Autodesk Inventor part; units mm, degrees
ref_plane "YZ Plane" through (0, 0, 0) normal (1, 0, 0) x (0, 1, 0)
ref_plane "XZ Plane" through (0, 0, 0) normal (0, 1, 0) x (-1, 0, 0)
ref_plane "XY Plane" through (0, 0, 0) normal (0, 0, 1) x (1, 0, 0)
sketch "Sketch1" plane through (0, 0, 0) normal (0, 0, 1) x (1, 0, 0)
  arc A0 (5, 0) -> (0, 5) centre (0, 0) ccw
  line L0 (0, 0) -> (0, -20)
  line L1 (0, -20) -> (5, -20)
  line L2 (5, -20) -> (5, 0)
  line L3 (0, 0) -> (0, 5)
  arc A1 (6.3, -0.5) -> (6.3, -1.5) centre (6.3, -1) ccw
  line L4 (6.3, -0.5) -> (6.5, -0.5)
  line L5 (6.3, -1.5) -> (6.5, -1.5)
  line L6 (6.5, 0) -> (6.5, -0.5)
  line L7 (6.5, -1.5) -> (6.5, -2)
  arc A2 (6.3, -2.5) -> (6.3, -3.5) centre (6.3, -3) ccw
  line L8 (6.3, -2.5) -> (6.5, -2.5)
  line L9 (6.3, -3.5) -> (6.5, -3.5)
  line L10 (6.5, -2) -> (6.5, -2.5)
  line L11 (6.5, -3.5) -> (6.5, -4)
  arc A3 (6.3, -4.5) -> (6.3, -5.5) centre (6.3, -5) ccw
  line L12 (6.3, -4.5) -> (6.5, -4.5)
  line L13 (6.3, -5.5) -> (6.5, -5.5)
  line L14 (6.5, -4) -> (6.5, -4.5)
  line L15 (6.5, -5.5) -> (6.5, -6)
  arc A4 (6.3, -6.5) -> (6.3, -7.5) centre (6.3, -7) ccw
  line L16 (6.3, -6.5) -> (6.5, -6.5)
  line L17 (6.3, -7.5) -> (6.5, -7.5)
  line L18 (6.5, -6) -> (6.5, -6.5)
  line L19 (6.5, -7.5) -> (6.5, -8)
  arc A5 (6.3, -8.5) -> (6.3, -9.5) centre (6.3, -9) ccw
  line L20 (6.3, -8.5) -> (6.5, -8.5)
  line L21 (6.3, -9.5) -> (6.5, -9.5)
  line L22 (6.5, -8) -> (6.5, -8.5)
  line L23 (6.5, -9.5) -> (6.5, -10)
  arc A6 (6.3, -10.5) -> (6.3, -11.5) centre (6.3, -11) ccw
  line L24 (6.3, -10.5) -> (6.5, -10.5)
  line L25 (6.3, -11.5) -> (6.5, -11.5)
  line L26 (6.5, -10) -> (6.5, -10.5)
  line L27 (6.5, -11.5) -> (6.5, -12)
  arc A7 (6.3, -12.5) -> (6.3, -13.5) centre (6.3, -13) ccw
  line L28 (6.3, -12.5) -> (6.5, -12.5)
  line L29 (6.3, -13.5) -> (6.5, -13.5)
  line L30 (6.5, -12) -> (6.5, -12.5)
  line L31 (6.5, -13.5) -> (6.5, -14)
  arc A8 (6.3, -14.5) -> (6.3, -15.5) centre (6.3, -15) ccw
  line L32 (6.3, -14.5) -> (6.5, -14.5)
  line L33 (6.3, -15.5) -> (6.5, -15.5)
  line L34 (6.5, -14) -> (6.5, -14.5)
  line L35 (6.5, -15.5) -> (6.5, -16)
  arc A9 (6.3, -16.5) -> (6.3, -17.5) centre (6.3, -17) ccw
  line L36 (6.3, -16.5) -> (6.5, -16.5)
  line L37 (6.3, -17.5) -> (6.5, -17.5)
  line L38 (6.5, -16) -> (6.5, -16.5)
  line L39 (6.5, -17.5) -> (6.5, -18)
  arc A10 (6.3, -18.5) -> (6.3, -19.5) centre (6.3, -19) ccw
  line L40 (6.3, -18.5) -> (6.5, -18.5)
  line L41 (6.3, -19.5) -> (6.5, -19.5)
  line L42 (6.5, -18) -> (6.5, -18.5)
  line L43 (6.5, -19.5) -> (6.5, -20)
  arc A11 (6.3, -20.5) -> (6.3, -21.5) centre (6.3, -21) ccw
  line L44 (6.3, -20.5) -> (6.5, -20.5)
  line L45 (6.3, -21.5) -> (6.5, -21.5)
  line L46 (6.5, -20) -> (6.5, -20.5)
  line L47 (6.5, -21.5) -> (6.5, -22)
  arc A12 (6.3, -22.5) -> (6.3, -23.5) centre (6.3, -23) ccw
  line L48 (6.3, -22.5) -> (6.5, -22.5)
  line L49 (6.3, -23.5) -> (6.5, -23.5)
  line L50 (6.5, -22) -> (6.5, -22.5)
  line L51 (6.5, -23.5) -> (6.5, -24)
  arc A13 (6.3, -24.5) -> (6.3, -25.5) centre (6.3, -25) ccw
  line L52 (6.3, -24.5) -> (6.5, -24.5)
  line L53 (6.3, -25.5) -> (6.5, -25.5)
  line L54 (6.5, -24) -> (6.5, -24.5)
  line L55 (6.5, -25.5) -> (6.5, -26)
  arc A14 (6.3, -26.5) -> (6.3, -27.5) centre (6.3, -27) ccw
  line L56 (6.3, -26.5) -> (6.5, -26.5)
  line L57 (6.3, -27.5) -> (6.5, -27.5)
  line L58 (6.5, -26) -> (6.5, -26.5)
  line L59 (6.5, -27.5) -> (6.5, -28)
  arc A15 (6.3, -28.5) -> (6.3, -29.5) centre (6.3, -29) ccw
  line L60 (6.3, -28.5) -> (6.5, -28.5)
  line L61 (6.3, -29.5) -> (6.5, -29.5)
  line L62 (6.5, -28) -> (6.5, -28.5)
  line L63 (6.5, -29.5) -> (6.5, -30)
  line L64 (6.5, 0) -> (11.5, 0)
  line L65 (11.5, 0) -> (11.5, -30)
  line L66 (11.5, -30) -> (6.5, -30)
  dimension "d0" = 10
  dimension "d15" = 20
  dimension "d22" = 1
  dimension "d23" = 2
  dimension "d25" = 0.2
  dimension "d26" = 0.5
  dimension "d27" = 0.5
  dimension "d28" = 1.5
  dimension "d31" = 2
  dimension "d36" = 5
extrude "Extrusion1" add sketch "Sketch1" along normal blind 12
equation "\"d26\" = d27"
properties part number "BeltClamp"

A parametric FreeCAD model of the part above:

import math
import FreeCAD as App
import Part
import Sketcher

doc = App.newDocument("Part")
body = doc.addObject("PartDesign::Body", "Body")
body.AllowCompound = True

# Sketch on XY plane
sketch1 = body.newObject("Sketcher::SketchObject", "Sketch")
sketch1.AttachmentSupport = (doc.getObject("XY_Plane"), [""])
sketch1.MapMode = "FlatFace"
sketch1.addGeometry(Part.LineSegment(App.Vector(5, -20, 0), App.Vector(5, 0, 0)), False)
sketch1.addGeometry(Part.ArcOfCircle(Part.Circle(App.Vector(0, 0, 0), App.Vector(0, 0, 1), 5), math.radians(0), math.radians(90)), False)
sketch1.addGeometry(Part.LineSegment(App.Vector(0, 5, 0), App.Vector(0, -20, 0)), False)
sketch1.addGeometry(Part.LineSegment(App.Vector(0, -20, 0), App.Vector(5, -20, 0)), False)
sketch1.addGeometry(Part.LineSegment(App.Vector(6.5, -0.5, 0), App.Vector(6.3, -0.5, 0)), False)
sketch1.addGeometry(Part.ArcOfCircle(Part.Circle(App.Vector(6.3, -1, 0), App.Vector(0, 0, 1), 0.5), math.radians(90), math.radians(270)), False)
sketch1.addGeometry(Part.LineSegment(App.Vector(6.3, -1.5, 0), App.Vector(6.5, -1.5, 0)), False)
sketch1.addGeometry(Part.LineSegment(App.Vector(6.5, -1.5, 0), App.Vector(6.5, -2.5, 0)), False)
sketch1.addGeometry(Part.LineSegment(App.Vector(6.5, -2.5, 0), App.Vector(6.3, -2.5, 0)), False)
sketch1.addGeometry(Part.ArcOfCircle(Part.Circle(App.Vector(6.3, -3, 0), App.Vector(0, 0, 1), 0.5), math.radians(90), math.radians(270)), False)
sketch1.addGeometry(Part.LineSegment(App.Vector(6.3, -3.5, 0), App.Vector(6.5, -3.5, 0)), False)
sketch1.addGeometry(Part.LineSegment(App.Vector(6.5, -3.5, 0), App.Vector(6.5, -4.5, 0)), False)
sketch1.addGeometry(Part.LineSegment(App.Vector(6.5, -4.5, 0), App.Vector(6.3, -4.5, 0)), False)
sketch1.addGeometry(Part.ArcOfCircle(Part.Circle(App.Vector(6.3, -5, 0), App.Vector(0, 0, 1), 0.5), math.radians(90), math.radians(270)), False)
sketch1.addGeometry(Part.LineSegment(App.Vector(6.3, -5.5, 0), App.Vector(6.5, -5.5, 0)), False)
sketch1.addGeometry(Part.LineSegment(App.Vector(6.5, -5.5, 0), App.Vector(6.5, -6.5, 0)), False)
sketch1.addGeometry(Part.LineSegment(App.Vector(6.5, -6.5, 0), App.Vector(6.3, -6.5, 0)), False)
sketch1.addGeometry(Part.ArcOfCircle(Part.Circle(App.Vector(6.3, -7, 0), App.Vector(0, 0, 1), 0.5), math.radians(90), math.radians(270)), False)
sketch1.addGeometry(Part.LineSegment(App.Vector(6.3, -7.5, 0), App.Vector(6.5, -7.5, 0)), False)
sketch1.addGeometry(Part.LineSegment(App.Vector(6.5, -7.5, 0), App.Vector(6.5, -8.5, 0)), False)
sketch1.addGeometry(Part.LineSegment(App.Vector(6.5, -8.5, 0), App.Vector(6.3, -8.5, 0)), False)
sketch1.addGeometry(Part.ArcOfCircle(Part.Circle(App.Vector(6.3, -9, 0), App.Vector(0, 0, 1), 0.5), math.radians(90), math.radians(270)), False)
sketch1.addGeometry(Part.LineSegment(App.Vector(6.3, -9.5, 0), App.Vector(6.5, -9.5, 0)), False)
sketch1.addGeometry(Part.LineSegment(App.Vector(6.5, -9.5, 0), App.Vector(6.5, -10.5, 0)), False)
sketch1.addGeometry(Part.LineSegment(App.Vector(6.5, -10.5, 0), App.Vector(6.3, -10.5, 0)), False)
sketch1.addGeometry(Part.ArcOfCircle(Part.Circle(App.Vector(6.3, -11, 0), App.Vector(0, 0, 1), 0.5), math.radians(90), math.radians(270)), False)
sketch1.addGeometry(Part.LineSegment(App.Vector(6.3, -11.5, 0), App.Vector(6.5, -11.5, 0)), False)
sketch1.addGeometry(Part.LineSegment(App.Vector(6.5, -11.5, 0), App.Vector(6.5, -12.5, 0)), False)
sketch1.addGeometry(Part.LineSegment(App.Vector(6.5, -12.5, 0), App.Vector(6.3, -12.5, 0)), False)
sketch1.addGeometry(Part.ArcOfCircle(Part.Circle(App.Vector(6.3, -13, 0), App.Vector(0, 0, 1), 0.5), math.radians(90), math.radians(270)), False)
sketch1.addGeometry(Part.LineSegment(App.Vector(6.3, -13.5, 0), App.Vector(6.5, -13.5, 0)), False)
sketch1.addGeometry(Part.LineSegment(App.Vector(6.5, -13.5, 0), App.Vector(6.5, -14.5, 0)), False)
sketch1.addGeometry(Part.LineSegment(App.Vector(6.5, -14.5, 0), App.Vector(6.3, -14.5, 0)), False)
sketch1.addGeometry(Part.ArcOfCircle(Part.Circle(App.Vector(6.3, -15, 0), App.Vector(0, 0, 1), 0.5), math.radians(90), math.radians(270)), False)
sketch1.addGeometry(Part.LineSegment(App.Vector(6.3, -15.5, 0), App.Vector(6.5, -15.5, 0)), False)
sketch1.addGeometry(Part.LineSegment(App.Vector(6.5, -15.5, 0), App.Vector(6.5, -16.5, 0)), False)
sketch1.addGeometry(Part.LineSegment(App.Vector(6.5, -16.5, 0), App.Vector(6.3, -16.5, 0)), False)
sketch1.addGeometry(Part.ArcOfCircle(Part.Circle(App.Vector(6.3, -17, 0), App.Vector(0, 0, 1), 0.5), math.radians(90), math.radians(270)), False)
sketch1.addGeometry(Part.LineSegment(App.Vector(6.3, -17.5, 0), App.Vector(6.5, -17.5, 0)), False)
sketch1.addGeometry(Part.LineSegment(App.Vector(6.5, -17.5, 0), App.Vector(6.5, -18.5, 0)), False)
sketch1.addGeometry(Part.LineSegment(App.Vector(6.5, -18.5, 0), App.Vector(6.3, -18.5, 0)), False)
sketch1.addGeometry(Part.ArcOfCircle(Part.Circle(App.Vector(6.3, -19, 0), App.Vector(0, 0, 1), 0.5), math.radians(90), math.radians(270)), False)
sketch1.addGeometry(Part.LineSegment(App.Vector(6.3, -19.5, 0), App.Vector(6.5, -19.5, 0)), False)
sketch1.addGeometry(Part.LineSegment(App.Vector(6.5, -19.5, 0), App.Vector(6.5, -20.5, 0)), False)
sketch1.addGeometry(Part.LineSegment(App.Vector(6.5, -20.5, 0), App.Vector(6.3, -20.5, 0)), False)
sketch1.addGeometry(Part.ArcOfCircle(Part.Circle(App.Vector(6.3, -21, 0), App.Vector(0, 0, 1), 0.5), math.radians(90), math.radians(270)), False)
sketch1.addGeometry(Part.LineSegment(App.Vector(6.3, -21.5, 0), App.Vector(6.5, -21.5, 0)), False)
sketch1.addGeometry(Part.LineSegment(App.Vector(6.5, -21.5, 0), App.Vector(6.5, -22.5, 0)), False)
sketch1.addGeometry(Part.LineSegment(App.Vector(6.5, -22.5, 0), App.Vector(6.3, -22.5, 0)), False)
sketch1.addGeometry(Part.ArcOfCircle(Part.Circle(App.Vector(6.3, -23, 0), App.Vector(0, 0, 1), 0.5), math.radians(90), math.radians(270)), False)
sketch1.addGeometry(Part.LineSegment(App.Vector(6.3, -23.5, 0), App.Vector(6.5, -23.5, 0)), False)
sketch1.addGeometry(Part.LineSegment(App.Vector(6.5, -23.5, 0), App.Vector(6.5, -24.5, 0)), False)
sketch1.addGeometry(Part.LineSegment(App.Vector(6.5, -24.5, 0), App.Vector(6.3, -24.5, 0)), False)
sketch1.addGeometry(Part.ArcOfCircle(Part.Circle(App.Vector(6.3, -25, 0), App.Vector(0, 0, 1), 0.5), math.radians(90), math.radians(270)), False)
sketch1.addGeometry(Part.LineSegment(App.Vector(6.3, -25.5, 0), App.Vector(6.5, -25.5, 0)), False)
sketch1.addGeometry(Part.LineSegment(App.Vector(6.5, -25.5, 0), App.Vector(6.5, -26.5, 0)), False)
sketch1.addGeometry(Part.LineSegment(App.Vector(6.5, -26.5, 0), App.Vector(6.3, -26.5, 0)), False)
sketch1.addGeometry(Part.ArcOfCircle(Part.Circle(App.Vector(6.3, -27, 0), App.Vector(0, 0, 1), 0.5), math.radians(90), math.radians(270)), False)
sketch1.addGeometry(Part.LineSegment(App.Vector(6.3, -27.5, 0), App.Vector(6.5, -27.5, 0)), False)
sketch1.addGeometry(Part.LineSegment(App.Vector(6.5, -27.5, 0), App.Vector(6.5, -28.5, 0)), False)
sketch1.addGeometry(Part.LineSegment(App.Vector(6.5, -28.5, 0), App.Vector(6.3, -28.5, 0)), False)
sketch1.addGeometry(Part.ArcOfCircle(Part.Circle(App.Vector(6.3, -29, 0), App.Vector(0, 0, 1), 0.5), math.radians(90), math.radians(270)), False)
sketch1.addGeometry(Part.LineSegment(App.Vector(6.3, -29.5, 0), App.Vector(6.5, -29.5, 0)), False)
sketch1.addGeometry(Part.LineSegment(App.Vector(6.5, -29.5, 0), App.Vector(6.5, -30, 0)), False)
sketch1.addGeometry(Part.LineSegment(App.Vector(6.5, -30, 0), App.Vector(11.5, -30, 0)), False)
sketch1.addGeometry(Part.LineSegment(App.Vector(11.5, -30, 0), App.Vector(11.5, 0, 0)), False)
sketch1.addGeometry(Part.LineSegment(App.Vector(11.5, 0, 0), App.Vector(6.5, 0, 0)), False)
sketch1.addGeometry(Part.LineSegment(App.Vector(6.5, 0, 0), App.Vector(6.5, -0.5, 0)), False)
sketch1.addConstraint(Sketcher.Constraint("Tangent", 0, 2, 1, 1))
sketch1.addConstraint(Sketcher.Constraint("Coincident", 1, 2, 2, 1))
sketch1.addConstraint(Sketcher.Constraint("Coincident", 2, 2, 3, 1))
sketch1.addConstraint(Sketcher.Constraint("Coincident", 3, 2, 0, 1))
sketch1.addConstraint(Sketcher.Constraint("Tangent", 4, 2, 5, 1))
sketch1.addConstraint(Sketcher.Constraint("Tangent", 5, 2, 6, 1))
sketch1.addConstraint(Sketcher.Constraint("Coincident", 6, 2, 7, 1))
sketch1.addConstraint(Sketcher.Constraint("Coincident", 7, 2, 8, 1))
sketch1.addConstraint(Sketcher.Constraint("Tangent", 8, 2, 9, 1))
sketch1.addConstraint(Sketcher.Constraint("Tangent", 9, 2, 10, 1))
sketch1.addConstraint(Sketcher.Constraint("Coincident", 10, 2, 11, 1))
sketch1.addConstraint(Sketcher.Constraint("Coincident", 11, 2, 12, 1))
sketch1.addConstraint(Sketcher.Constraint("Tangent", 12, 2, 13, 1))
sketch1.addConstraint(Sketcher.Constraint("Tangent", 13, 2, 14, 1))
sketch1.addConstraint(Sketcher.Constraint("Coincident", 14, 2, 15, 1))
sketch1.addConstraint(Sketcher.Constraint("Coincident", 15, 2, 16, 1))
sketch1.addConstraint(Sketcher.Constraint("Tangent", 16, 2, 17, 1))
sketch1.addConstraint(Sketcher.Constraint("Tangent", 17, 2, 18, 1))
sketch1.addConstraint(Sketcher.Constraint("Coincident", 18, 2, 19, 1))
sketch1.addConstraint(Sketcher.Constraint("Coincident", 19, 2, 20, 1))
sketch1.addConstraint(Sketcher.Constraint("Tangent", 20, 2, 21, 1))
sketch1.addConstraint(Sketcher.Constraint("Tangent", 21, 2, 22, 1))
sketch1.addConstraint(Sketcher.Constraint("Coincident", 22, 2, 23, 1))
sketch1.addConstraint(Sketcher.Constraint("Coincident", 23, 2, 24, 1))
sketch1.addConstraint(Sketcher.Constraint("Tangent", 24, 2, 25, 1))
sketch1.addConstraint(Sketcher.Constraint("Tangent", 25, 2, 26, 1))
sketch1.addConstraint(Sketcher.Constraint("Coincident", 26, 2, 27, 1))
sketch1.addConstraint(Sketcher.Constraint("Coincident", 27, 2, 28, 1))
sketch1.addConstraint(Sketcher.Constraint("Tangent", 28, 2, 29, 1))
sketch1.addConstraint(Sketcher.Constraint("Tangent", 29, 2, 30, 1))
sketch1.addConstraint(Sketcher.Constraint("Coincident", 30, 2, 31, 1))
sketch1.addConstraint(Sketcher.Constraint("Coincident", 31, 2, 32, 1))
sketch1.addConstraint(Sketcher.Constraint("Tangent", 32, 2, 33, 1))
sketch1.addConstraint(Sketcher.Constraint("Tangent", 33, 2, 34, 1))
sketch1.addConstraint(Sketcher.Constraint("Coincident", 34, 2, 35, 1))
sketch1.addConstraint(Sketcher.Constraint("Coincident", 35, 2, 36, 1))
sketch1.addConstraint(Sketcher.Constraint("Tangent", 36, 2, 37, 1))
sketch1.addConstraint(Sketcher.Constraint("Tangent", 37, 2, 38, 1))
sketch1.addConstraint(Sketcher.Constraint("Coincident", 38, 2, 39, 1))
sketch1.addConstraint(Sketcher.Constraint("Coincident", 39, 2, 40, 1))
sketch1.addConstraint(Sketcher.Constraint("Tangent", 40, 2, 41, 1))
sketch1.addConstraint(Sketcher.Constraint("Tangent", 41, 2, 42, 1))
sketch1.addConstraint(Sketcher.Constraint("Coincident", 42, 2, 43, 1))
sketch1.addConstraint(Sketcher.Constraint("Coincident", 43, 2, 44, 1))
sketch1.addConstraint(Sketcher.Constraint("Tangent", 44, 2, 45, 1))
sketch1.addConstraint(Sketcher.Constraint("Tangent", 45, 2, 46, 1))
sketch1.addConstraint(Sketcher.Constraint("Coincident", 46, 2, 47, 1))
sketch1.addConstraint(Sketcher.Constraint("Coincident", 47, 2, 48, 1))
sketch1.addConstraint(Sketcher.Constraint("Tangent", 48, 2, 49, 1))
sketch1.addConstraint(Sketcher.Constraint("Tangent", 49, 2, 50, 1))
sketch1.addConstraint(Sketcher.Constraint("Coincident", 50, 2, 51, 1))
sketch1.addConstraint(Sketcher.Constraint("Coincident", 51, 2, 52, 1))
sketch1.addConstraint(Sketcher.Constraint("Tangent", 52, 2, 53, 1))
sketch1.addConstraint(Sketcher.Constraint("Tangent", 53, 2, 54, 1))
sketch1.addConstraint(Sketcher.Constraint("Coincident", 54, 2, 55, 1))
sketch1.addConstraint(Sketcher.Constraint("Coincident", 55, 2, 56, 1))
sketch1.addConstraint(Sketcher.Constraint("Tangent", 56, 2, 57, 1))
sketch1.addConstraint(Sketcher.Constraint("Tangent", 57, 2, 58, 1))
sketch1.addConstraint(Sketcher.Constraint("Coincident", 58, 2, 59, 1))
sketch1.addConstraint(Sketcher.Constraint("Coincident", 59, 2, 60, 1))
sketch1.addConstraint(Sketcher.Constraint("Tangent", 60, 2, 61, 1))
sketch1.addConstraint(Sketcher.Constraint("Tangent", 61, 2, 62, 1))
sketch1.addConstraint(Sketcher.Constraint("Coincident", 62, 2, 63, 1))
sketch1.addConstraint(Sketcher.Constraint("Coincident", 63, 2, 64, 1))
sketch1.addConstraint(Sketcher.Constraint("Coincident", 64, 2, 65, 1))
sketch1.addConstraint(Sketcher.Constraint("Coincident", 65, 2, 66, 1))
sketch1.addConstraint(Sketcher.Constraint("Coincident", 66, 2, 67, 1))
sketch1.addConstraint(Sketcher.Constraint("Coincident", 67, 2, 4, 1))
sketch1.addConstraint(Sketcher.Constraint("Vertical", 0))
sketch1.addConstraint(Sketcher.Constraint("Vertical", 2))
sketch1.addConstraint(Sketcher.Constraint("Horizontal", 3))
sketch1.addConstraint(Sketcher.Constraint("Horizontal", 4))
sketch1.addConstraint(Sketcher.Constraint("Horizontal", 6))
sketch1.addConstraint(Sketcher.Constraint("Vertical", 7))
sketch1.addConstraint(Sketcher.Constraint("Horizontal", 8))
sketch1.addConstraint(Sketcher.Constraint("Horizontal", 10))
sketch1.addConstraint(Sketcher.Constraint("Vertical", 11))
sketch1.addConstraint(Sketcher.Constraint("Horizontal", 12))
sketch1.addConstraint(Sketcher.Constraint("Horizontal", 14))
sketch1.addConstraint(Sketcher.Constraint("Vertical", 15))
sketch1.addConstraint(Sketcher.Constraint("Horizontal", 16))
sketch1.addConstraint(Sketcher.Constraint("Horizontal", 18))
sketch1.addConstraint(Sketcher.Constraint("Vertical", 19))
sketch1.addConstraint(Sketcher.Constraint("Horizontal", 20))
sketch1.addConstraint(Sketcher.Constraint("Horizontal", 22))
sketch1.addConstraint(Sketcher.Constraint("Vertical", 23))
sketch1.addConstraint(Sketcher.Constraint("Horizontal", 24))
sketch1.addConstraint(Sketcher.Constraint("Horizontal", 26))
sketch1.addConstraint(Sketcher.Constraint("Vertical", 27))
sketch1.addConstraint(Sketcher.Constraint("Horizontal", 28))
sketch1.addConstraint(Sketcher.Constraint("Horizontal", 30))
sketch1.addConstraint(Sketcher.Constraint("Vertical", 31))
sketch1.addConstraint(Sketcher.Constraint("Horizontal", 32))
sketch1.addConstraint(Sketcher.Constraint("Horizontal", 34))
sketch1.addConstraint(Sketcher.Constraint("Vertical", 35))
sketch1.addConstraint(Sketcher.Constraint("Horizontal", 36))
sketch1.addConstraint(Sketcher.Constraint("Horizontal", 38))
sketch1.addConstraint(Sketcher.Constraint("Vertical", 39))
sketch1.addConstraint(Sketcher.Constraint("Horizontal", 40))
sketch1.addConstraint(Sketcher.Constraint("Horizontal", 42))
sketch1.addConstraint(Sketcher.Constraint("Vertical", 43))
sketch1.addConstraint(Sketcher.Constraint("Horizontal", 44))
sketch1.addConstraint(Sketcher.Constraint("Horizontal", 46))
sketch1.addConstraint(Sketcher.Constraint("Vertical", 47))
sketch1.addConstraint(Sketcher.Constraint("Horizontal", 48))
sketch1.addConstraint(Sketcher.Constraint("Horizontal", 50))
sketch1.addConstraint(Sketcher.Constraint("Vertical", 51))
sketch1.addConstraint(Sketcher.Constraint("Horizontal", 52))
sketch1.addConstraint(Sketcher.Constraint("Horizontal", 54))
sketch1.addConstraint(Sketcher.Constraint("Vertical", 55))
sketch1.addConstraint(Sketcher.Constraint("Horizontal", 56))
sketch1.addConstraint(Sketcher.Constraint("Horizontal", 58))
sketch1.addConstraint(Sketcher.Constraint("Vertical", 59))
sketch1.addConstraint(Sketcher.Constraint("Horizontal", 60))
sketch1.addConstraint(Sketcher.Constraint("Horizontal", 62))
sketch1.addConstraint(Sketcher.Constraint("Vertical", 63))
sketch1.addConstraint(Sketcher.Constraint("Horizontal", 64))
sketch1.addConstraint(Sketcher.Constraint("Vertical", 65))
sketch1.addConstraint(Sketcher.Constraint("Horizontal", 66))
sketch1.addConstraint(Sketcher.Constraint("Vertical", 67))
sketch1.addConstraint(Sketcher.Constraint("Coincident", 1, 3, -1, 1))
sketch1.addConstraint(Sketcher.Constraint("Equal", 5, 9))
sketch1.addConstraint(Sketcher.Constraint("Equal", 9, 13))
sketch1.addConstraint(Sketcher.Constraint("Equal", 13, 17))
sketch1.addConstraint(Sketcher.Constraint("Equal", 17, 21))
sketch1.addConstraint(Sketcher.Constraint("Equal", 21, 25))
sketch1.addConstraint(Sketcher.Constraint("Equal", 25, 29))
sketch1.addConstraint(Sketcher.Constraint("Equal", 29, 33))
sketch1.addConstraint(Sketcher.Constraint("Equal", 33, 37))
sketch1.addConstraint(Sketcher.Constraint("Equal", 37, 41))
sketch1.addConstraint(Sketcher.Constraint("Equal", 41, 45))
sketch1.addConstraint(Sketcher.Constraint("Equal", 45, 49))
sketch1.addConstraint(Sketcher.Constraint("Equal", 49, 53))
sketch1.addConstraint(Sketcher.Constraint("Equal", 53, 57))
sketch1.addConstraint(Sketcher.Constraint("Equal", 57, 61))
sketch1.addConstraint(Sketcher.Constraint("PointOnObject", 1, 2, -2))
sketch1.addConstraint(Sketcher.Constraint("PointOnObject", 65, 2, -1))
sketch1.addConstraint(Sketcher.Constraint("Vertical", 5, 3, 9, 3))
sketch1.addConstraint(Sketcher.Constraint("Vertical", 9, 3, 13, 3))
sketch1.addConstraint(Sketcher.Constraint("Vertical", 13, 3, 17, 3))
sketch1.addConstraint(Sketcher.Constraint("Vertical", 17, 3, 21, 3))
sketch1.addConstraint(Sketcher.Constraint("Vertical", 21, 3, 25, 3))
sketch1.addConstraint(Sketcher.Constraint("Vertical", 25, 3, 29, 3))
sketch1.addConstraint(Sketcher.Constraint("Vertical", 29, 3, 33, 3))
sketch1.addConstraint(Sketcher.Constraint("Vertical", 33, 3, 37, 3))
sketch1.addConstraint(Sketcher.Constraint("Vertical", 37, 3, 41, 3))
sketch1.addConstraint(Sketcher.Constraint("Vertical", 41, 3, 45, 3))
sketch1.addConstraint(Sketcher.Constraint("Vertical", 45, 3, 49, 3))
sketch1.addConstraint(Sketcher.Constraint("Vertical", 49, 3, 53, 3))
sketch1.addConstraint(Sketcher.Constraint("Vertical", 53, 3, 57, 3))
sketch1.addConstraint(Sketcher.Constraint("Vertical", 57, 3, 61, 3))
sketch1.addConstraint(Sketcher.Constraint("Vertical", 7, 2, 10, 2))
sketch1.addConstraint(Sketcher.Constraint("Vertical", 11, 2, 14, 2))
sketch1.addConstraint(Sketcher.Constraint("Vertical", 15, 2, 18, 2))
sketch1.addConstraint(Sketcher.Constraint("Vertical", 19, 2, 22, 2))
sketch1.addConstraint(Sketcher.Constraint("Vertical", 23, 2, 26, 2))
sketch1.addConstraint(Sketcher.Constraint("Vertical", 27, 2, 30, 2))
sketch1.addConstraint(Sketcher.Constraint("Vertical", 31, 2, 34, 2))
sketch1.addConstraint(Sketcher.Constraint("Vertical", 35, 2, 38, 2))
sketch1.addConstraint(Sketcher.Constraint("Vertical", 39, 2, 42, 2))
sketch1.addConstraint(Sketcher.Constraint("Vertical", 43, 2, 46, 2))
sketch1.addConstraint(Sketcher.Constraint("Vertical", 47, 2, 50, 2))
sketch1.addConstraint(Sketcher.Constraint("Vertical", 51, 2, 54, 2))
sketch1.addConstraint(Sketcher.Constraint("Vertical", 55, 2, 58, 2))
sketch1.addConstraint(Sketcher.Constraint("Vertical", 59, 2, 62, 2))
sketch1.addConstraint(Sketcher.Constraint("Vertical", 63, 2, 66, 2))
sketch1.addConstraint(Sketcher.Constraint("Equal", 3, 64))
sketch1.addConstraint(Sketcher.Constraint("Equal", 7, 11))
sketch1.addConstraint(Sketcher.Constraint("Equal", 11, 15))
sketch1.addConstraint(Sketcher.Constraint("Equal", 15, 19))
sketch1.addConstraint(Sketcher.Constraint("Equal", 19, 23))
sketch1.addConstraint(Sketcher.Constraint("Equal", 23, 27))
sketch1.addConstraint(Sketcher.Constraint("Equal", 27, 31))
sketch1.addConstraint(Sketcher.Constraint("Equal", 31, 35))
sketch1.addConstraint(Sketcher.Constraint("Equal", 35, 39))
sketch1.addConstraint(Sketcher.Constraint("Equal", 39, 43))
sketch1.addConstraint(Sketcher.Constraint("Equal", 43, 47))
sketch1.addConstraint(Sketcher.Constraint("Equal", 47, 51))
sketch1.addConstraint(Sketcher.Constraint("Equal", 51, 55))
sketch1.addConstraint(Sketcher.Constraint("Equal", 55, 59))
sketch1.addConstraint(Sketcher.Constraint("Equal", 63, 67))
sketch1.addConstraint(Sketcher.Constraint("Radius", 1, 5.0))
sketch1.addConstraint(Sketcher.Constraint("Radius", 5, 0.5))
sketch1.addConstraint(Sketcher.Constraint("DistanceY", 0, 1, 0, 2, 20.0))
sketch1.addConstraint(Sketcher.Constraint("DistanceY", 7, 2, 7, 1, 1.0))
sketch1.addConstraint(Sketcher.Constraint("DistanceX", 4, 2, 4, 1, 0.2))
sketch1.addConstraint(Sketcher.Constraint("DistanceY", 63, 2, 63, 1, 0.5))
sketch1.addConstraint(Sketcher.Constraint("DistanceX", -1, 1, 5, 3, 6.3))
pad1 = body.newObject("PartDesign::Pad", "Pad")
pad1.Profile = sketch1
pad1.Length = 12

doc.recompute()
